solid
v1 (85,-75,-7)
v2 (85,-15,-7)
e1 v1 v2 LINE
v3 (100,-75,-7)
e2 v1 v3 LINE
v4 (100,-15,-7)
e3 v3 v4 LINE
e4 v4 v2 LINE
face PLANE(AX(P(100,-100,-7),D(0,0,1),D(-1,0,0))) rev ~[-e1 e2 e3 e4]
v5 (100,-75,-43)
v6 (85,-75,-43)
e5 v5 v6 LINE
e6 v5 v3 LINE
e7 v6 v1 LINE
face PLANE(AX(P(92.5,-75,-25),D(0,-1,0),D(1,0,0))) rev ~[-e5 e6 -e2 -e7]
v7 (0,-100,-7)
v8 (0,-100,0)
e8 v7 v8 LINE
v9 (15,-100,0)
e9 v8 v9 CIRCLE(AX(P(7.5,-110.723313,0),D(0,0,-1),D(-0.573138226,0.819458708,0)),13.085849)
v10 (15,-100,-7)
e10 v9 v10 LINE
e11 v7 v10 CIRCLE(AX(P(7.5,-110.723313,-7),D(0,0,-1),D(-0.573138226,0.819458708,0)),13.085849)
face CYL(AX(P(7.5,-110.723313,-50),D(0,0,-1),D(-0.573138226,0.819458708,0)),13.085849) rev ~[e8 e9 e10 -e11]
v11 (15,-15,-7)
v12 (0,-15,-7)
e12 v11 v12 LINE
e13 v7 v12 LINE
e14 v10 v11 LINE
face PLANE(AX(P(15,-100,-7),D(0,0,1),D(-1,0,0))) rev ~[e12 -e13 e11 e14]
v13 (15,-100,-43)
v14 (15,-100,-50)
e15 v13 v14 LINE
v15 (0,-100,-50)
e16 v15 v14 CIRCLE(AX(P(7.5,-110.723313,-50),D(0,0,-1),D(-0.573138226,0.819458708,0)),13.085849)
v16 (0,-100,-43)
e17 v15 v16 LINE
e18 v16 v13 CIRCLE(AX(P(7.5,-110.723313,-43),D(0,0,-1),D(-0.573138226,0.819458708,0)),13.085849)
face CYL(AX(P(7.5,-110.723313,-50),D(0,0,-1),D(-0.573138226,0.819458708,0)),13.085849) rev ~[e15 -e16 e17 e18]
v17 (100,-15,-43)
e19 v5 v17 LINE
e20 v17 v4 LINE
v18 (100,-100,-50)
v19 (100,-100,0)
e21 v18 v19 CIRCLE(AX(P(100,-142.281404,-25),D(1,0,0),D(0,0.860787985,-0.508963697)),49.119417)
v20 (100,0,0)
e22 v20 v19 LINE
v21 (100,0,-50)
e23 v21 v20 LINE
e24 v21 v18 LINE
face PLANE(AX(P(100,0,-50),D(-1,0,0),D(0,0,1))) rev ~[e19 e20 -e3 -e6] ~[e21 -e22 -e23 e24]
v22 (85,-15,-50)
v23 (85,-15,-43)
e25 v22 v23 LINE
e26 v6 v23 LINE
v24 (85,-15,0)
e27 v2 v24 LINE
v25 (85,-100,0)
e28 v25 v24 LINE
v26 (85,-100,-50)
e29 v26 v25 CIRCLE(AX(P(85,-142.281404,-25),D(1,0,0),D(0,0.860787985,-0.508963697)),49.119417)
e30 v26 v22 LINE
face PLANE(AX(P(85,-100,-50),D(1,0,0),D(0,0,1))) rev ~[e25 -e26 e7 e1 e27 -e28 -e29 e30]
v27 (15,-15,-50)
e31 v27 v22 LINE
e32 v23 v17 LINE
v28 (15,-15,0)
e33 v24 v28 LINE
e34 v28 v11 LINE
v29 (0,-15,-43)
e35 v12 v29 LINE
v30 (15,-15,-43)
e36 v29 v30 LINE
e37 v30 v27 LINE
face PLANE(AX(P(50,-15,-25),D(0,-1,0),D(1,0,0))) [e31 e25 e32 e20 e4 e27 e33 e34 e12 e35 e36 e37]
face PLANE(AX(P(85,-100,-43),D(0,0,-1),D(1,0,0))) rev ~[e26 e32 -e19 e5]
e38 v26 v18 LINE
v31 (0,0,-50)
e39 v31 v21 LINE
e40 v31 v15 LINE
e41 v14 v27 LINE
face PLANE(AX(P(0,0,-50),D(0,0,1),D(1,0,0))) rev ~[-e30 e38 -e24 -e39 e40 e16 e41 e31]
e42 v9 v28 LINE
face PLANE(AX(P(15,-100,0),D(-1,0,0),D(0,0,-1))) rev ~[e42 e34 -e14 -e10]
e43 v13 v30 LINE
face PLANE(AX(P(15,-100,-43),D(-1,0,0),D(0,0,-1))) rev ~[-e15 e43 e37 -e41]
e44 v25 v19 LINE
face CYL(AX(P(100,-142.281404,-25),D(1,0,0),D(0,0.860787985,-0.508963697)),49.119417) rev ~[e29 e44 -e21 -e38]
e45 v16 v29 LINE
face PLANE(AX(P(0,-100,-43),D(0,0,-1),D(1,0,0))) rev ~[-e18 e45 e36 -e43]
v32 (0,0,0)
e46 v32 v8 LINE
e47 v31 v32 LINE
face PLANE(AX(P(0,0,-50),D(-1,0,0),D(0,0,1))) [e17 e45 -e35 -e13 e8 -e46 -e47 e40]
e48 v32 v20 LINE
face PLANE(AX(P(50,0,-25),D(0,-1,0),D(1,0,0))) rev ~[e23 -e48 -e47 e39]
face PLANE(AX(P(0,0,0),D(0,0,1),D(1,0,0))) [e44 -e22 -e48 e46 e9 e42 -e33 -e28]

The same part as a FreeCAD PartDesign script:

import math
import FreeCAD as App
import Part
import Sketcher

V = App.Vector

doc = App.newDocument("Part")
body = doc.addObject("PartDesign::Body", "Body")

# Sketch on XZ plane
sketch1 = body.newObject("Sketcher::SketchObject", "Sketch")
sketch1.AttachmentSupport = (doc.getObject("XZ_Plane"), [""])
sketch1.MapMode = "FlatFace"
sketch1.addGeometry(Part.LineSegment(V(0, 0, 0), V(0, -50, 0)), False)
sketch1.addGeometry(Part.LineSegment(V(0, -50, 0), V(100, -50, 0)), False)
sketch1.addGeometry(Part.LineSegment(V(100, -50, 0), V(100, 0, 0)), False)
sketch1.addGeometry(Part.LineSegment(V(100, 0, 0), V(0, 0, 0)), False)
sketch1.addConstraint(Sketcher.Constraint("Coincident", 0, 2, 1, 1))
sketch1.addConstraint(Sketcher.Constraint("Coincident", 1, 2, 2, 1))
sketch1.addConstraint(Sketcher.Constraint("Coincident", 2, 2, 3, 1))
sketch1.addConstraint(Sketcher.Constraint("Coincident", 3, 2, 0, 1))
sketch1.addConstraint(Sketcher.Constraint("Vertical", 0))
sketch1.addConstraint(Sketcher.Constraint("Horizontal", 1))
sketch1.addConstraint(Sketcher.Constraint("Vertical", 2))
sketch1.addConstraint(Sketcher.Constraint("Horizontal", 3))
sketch1.addConstraint(Sketcher.Constraint("Coincident", 3, 2, -1, 1))
sketch1.addConstraint(Sketcher.Constraint("DistanceX", 1, 1, 1, 2, 100.0))
sketch1.addConstraint(Sketcher.Constraint("DistanceY", 0, 2, 0, 1, 50.0))
pad1 = body.newObject("PartDesign::Pad", "Pad")
pad1.Profile = sketch1
pad1.Length = 100

# Sketch on XZ plane
sketch2 = body.newObject("Sketcher::SketchObject", "Sketch001")
sketch2.AttachmentSupport = (doc.getObject("XZ_Plane"), [""])
sketch2.MapMode = "FlatFace"
sketch2.AttachmentOffset = App.Placement(V(0, 0, 100), App.Rotation())
sketch2.addGeometry(Part.LineSegment(V(85, 0, 0), V(15, 0, 0)), False)
sketch2.addGeometry(Part.LineSegment(V(15, 0, 0), V(15, -7, 0)), False)
sketch2.addGeometry(Part.LineSegment(V(15, -7, 0), V(0, -7, 0)), False)
sketch2.addGeometry(Part.LineSegment(V(0, -7, 0), V(0, -43, 0)), False)
sketch2.addGeometry(Part.LineSegment(V(0, -43, 0), V(15, -43, 0)), False)
sketch2.addGeometry(Part.LineSegment(V(15, -43, 0), V(15, -50, 0)), False)
sketch2.addGeometry(Part.LineSegment(V(15, -50, 0), V(85, -50, 0)), False)
sketch2.addGeometry(Part.LineSegment(V(85, -50, 0), V(85, -43, 0)), False)
sketch2.addGeometry(Part.LineSegment(V(85, -43, 0), V(100, -43, 0)), False)
sketch2.addGeometry(Part.LineSegment(V(100, -43, 0), V(100, -7, 0)), False)
sketch2.addGeometry(Part.LineSegment(V(100, -7, 0), V(85, -7, 0)), False)
sketch2.addGeometry(Part.LineSegment(V(85, -7, 0), V(85, 0, 0)), False)
sketch2.addConstraint(Sketcher.Constraint("Coincident", 0, 2, 1, 1))
sketch2.addConstraint(Sketcher.Constraint("Coincident", 1, 2, 2, 1))
sketch2.addConstraint(Sketcher.Constraint("Coincident", 2, 2, 3, 1))
sketch2.addConstraint(Sketcher.Constraint("Coincident", 3, 2, 4, 1))
sketch2.addConstraint(Sketcher.Constraint("Coincident", 4, 2, 5, 1))
sketch2.addConstraint(Sketcher.Constraint("Coincident", 5, 2, 6, 1))
sketch2.addConstraint(Sketcher.Constraint("Coincident", 6, 2, 7, 1))
sketch2.addConstraint(Sketcher.Constraint("Coincident", 7, 2, 8, 1))
sketch2.addConstraint(Sketcher.Constraint("Coincident", 8, 2, 9, 1))
sketch2.addConstraint(Sketcher.Constraint("Coincident", 9, 2, 10, 1))
sketch2.addConstraint(Sketcher.Constraint("Coincident", 10, 2, 11, 1))
sketch2.addConstraint(Sketcher.Constraint("Coincident", 11, 2, 0, 1))
sketch2.addConstraint(Sketcher.Constraint("Horizontal", 0))
sketch2.addConstraint(Sketcher.Constraint("Vertical", 1))
sketch2.addConstraint(Sketcher.Constraint("Horizontal", 2))
sketch2.addConstraint(Sketcher.Constraint("Vertical", 3))
sketch2.addConstraint(Sketcher.Constraint("Horizontal", 4))
sketch2.addConstraint(Sketcher.Constraint("Vertical", 5))
sketch2.addConstraint(Sketcher.Constraint("Horizontal", 6))
sketch2.addConstraint(Sketcher.Constraint("Vertical", 7))
sketch2.addConstraint(Sketcher.Constraint("Horizontal", 8))
sketch2.addConstraint(Sketcher.Constraint("Vertical", 9))
sketch2.addConstraint(Sketcher.Constraint("Horizontal", 10))
sketch2.addConstraint(Sketcher.Constraint("Vertical", 11))
sketch2.addConstraint(Sketcher.Constraint("PointOnObject", 0, 2, -1))
sketch2.addConstraint(Sketcher.Constraint("PointOnObject", 2, 2, -2))
sketch2.addConstraint(Sketcher.Constraint("Horizontal", 4, 2, 7, 2))
sketch2.addConstraint(Sketcher.Constraint("Horizontal", 2, 2, 9, 2))
sketch2.addConstraint(Sketcher.Constraint("Vertical", 1, 2, 4, 2))
sketch2.addConstraint(Sketcher.Constraint("Vertical", 7, 2, 10, 2))
sketch2.addConstraint(Sketcher.Constraint("Equal", 4, 8))
sketch2.addConstraint(Sketcher.Constraint("Equal", 1, 5))
sketch2.addConstraint(Sketcher.Constraint("DistanceX", 0, 2, 0, 1, 70.0))
sketch2.addConstraint(Sketcher.Constraint("DistanceX", 2, 2, 2, 1, 15.0))
sketch2.addConstraint(Sketcher.Constraint("DistanceY", 1, 2, 1, 1, 7.0))
sketch2.addConstraint(Sketcher.Constraint("DistanceY", 3, 2, 3, 1, 36.0))
pocket1 = body.newObject("PartDesign::Pocket", "Pocket")
pocket1.Profile = sketch2
pocket1.Length = 85

# Sketch on XZ plane
sketch3 = body.newObject("Sketcher::SketchObject", "Sketch002")
sketch3.AttachmentSupport = (doc.getObject("XZ_Plane"), [""])
sketch3.MapMode = "FlatFace"
sketch3.AttachmentOffset = App.Placement(V(0, 0, 100), App.Rotation())
sketch3.addGeometry(Part.LineSegment(V(85, 0, 0), V(85, -50, 0)), False)
sketch3.addGeometry(Part.LineSegment(V(85, -50, 0), V(100, -50, 0)), False)
sketch3.addGeometry(Part.LineSegment(V(100, -50, 0), V(100, 0, 0)), False)
sketch3.addGeometry(Part.LineSegment(V(100, 0, 0), V(85, 0, 0)), False)
sketch3.addConstraint(Sketcher.Constraint("Coincident", 0, 2, 1, 1))
sketch3.addConstraint(Sketcher.Constraint("Coincident", 1, 2, 2, 1))
sketch3.addConstraint(Sketcher.Constraint("Coincident", 2, 2, 3, 1))
sketch3.addConstraint(Sketcher.Constraint("Coincident", 3, 2, 0, 1))
sketch3.addConstraint(Sketcher.Constraint("Vertical", 0))
sketch3.addConstraint(Sketcher.Constraint("Horizontal", 1))
sketch3.addConstraint(Sketcher.Constraint("Vertical", 2))
sketch3.addConstraint(Sketcher.Constraint("Horizontal", 3))
sketch3.addConstraint(Sketcher.Constraint("PointOnObject", 2, 2, -1))
sketch3.addConstraint(Sketcher.Constraint("DistanceX", 1, 1, 1, 2, 15.0))
sketch3.addConstraint(Sketcher.Constraint("DistanceY", 0, 2, 0, 1, 50.0))
sketch3.addConstraint(Sketcher.Constraint("DistanceX", -1, 1, 0, 2, 85.0))
pad2 = body.newObject("PartDesign::Pad", "Pad001")
pad2.Profile = sketch3
pad2.Length = 25
pad2.Reversed = True

# Sketch on YZ plane
sketch4 = body.newObject("Sketcher::SketchObject", "Sketch003")
sketch4.AttachmentSupport = (doc.getObject("YZ_Plane"), [""])
sketch4.MapMode = "FlatFace"
sketch4.AttachmentOffset = App.Placement(V(0, 0, 100), App.Rotation())
sketch4.addGeometry(Part.LineSegment(V(-100, 0, 0), V(-100, -50, 0)), False)
sketch4.addGeometry(Part.ArcOfCircle(Part.Circle(V(-142, -25, 0), V(0, 0, 1), 49), math.radians(-31), math.radians(31)), False)
sketch4.addConstraint(Sketcher.Constraint("Coincident", 0, 1, 1, 2))
sketch4.addConstraint(Sketcher.Constraint("Coincident", 1, 1, 0, 2))
sketch4.addConstraint(Sketcher.Constraint("Vertical", 0))
sketch4.addConstraint(Sketcher.Constraint("PointOnObject", 0, 1, -1))
sketch4.addConstraint(Sketcher.Constraint("DistanceY", 0, 2, 0, 1, 50.0))
sketch4.addConstraint(Sketcher.Constraint("DistanceX", 0, 1, -1, 1, 100.0))
sketch4.addConstraint(Sketcher.Constraint("Radius", 1, 49.119417))
pocket2 = body.newObject("PartDesign::Pocket", "Pocket001")
pocket2.Profile = sketch4
pocket2.Length = 15

# Sketch on XY plane
sketch5 = body.newObject("Sketcher::SketchObject", "Sketch004")
sketch5.AttachmentSupport = (doc.getObject("XY_Plane"), [""])
sketch5.MapMode = "FlatFace"
sketch5.AttachmentOffset = App.Placement(V(0, 0, -50), App.Rotation())
sketch5.addGeometry(Part.LineSegment(V(15, -100, 0), V(0, -100, 0)), False)
sketch5.addGeometry(Part.ArcOfCircle(Part.Circle(V(8, -111, 0), V(0, 0, 1), 13), math.radians(55), math.radians(125)), False)
sketch5.addConstraint(Sketcher.Constraint("Coincident", 0, 1, 1, 1))
sketch5.addConstraint(Sketcher.Constraint("Coincident", 1, 2, 0, 2))
sketch5.addConstraint(Sketcher.Constraint("Horizontal", 0))
sketch5.addConstraint(Sketcher.Constraint("PointOnObject", 1, 2, -2))
sketch5.addConstraint(Sketcher.Constraint("DistanceX", 0, 2, 0, 1, 15.0))
sketch5.addConstraint(Sketcher.Constraint("DistanceY", 0, 1, -1, 1, 100.0))
sketch5.addConstraint(Sketcher.Constraint("Radius", 1, 13.085849))
pocket3 = body.newObject("PartDesign::Pocket", "Pocket002")
pocket3.Profile = sketch5
pocket3.Length = 50
pocket3.Reversed = True

doc.recompute()
